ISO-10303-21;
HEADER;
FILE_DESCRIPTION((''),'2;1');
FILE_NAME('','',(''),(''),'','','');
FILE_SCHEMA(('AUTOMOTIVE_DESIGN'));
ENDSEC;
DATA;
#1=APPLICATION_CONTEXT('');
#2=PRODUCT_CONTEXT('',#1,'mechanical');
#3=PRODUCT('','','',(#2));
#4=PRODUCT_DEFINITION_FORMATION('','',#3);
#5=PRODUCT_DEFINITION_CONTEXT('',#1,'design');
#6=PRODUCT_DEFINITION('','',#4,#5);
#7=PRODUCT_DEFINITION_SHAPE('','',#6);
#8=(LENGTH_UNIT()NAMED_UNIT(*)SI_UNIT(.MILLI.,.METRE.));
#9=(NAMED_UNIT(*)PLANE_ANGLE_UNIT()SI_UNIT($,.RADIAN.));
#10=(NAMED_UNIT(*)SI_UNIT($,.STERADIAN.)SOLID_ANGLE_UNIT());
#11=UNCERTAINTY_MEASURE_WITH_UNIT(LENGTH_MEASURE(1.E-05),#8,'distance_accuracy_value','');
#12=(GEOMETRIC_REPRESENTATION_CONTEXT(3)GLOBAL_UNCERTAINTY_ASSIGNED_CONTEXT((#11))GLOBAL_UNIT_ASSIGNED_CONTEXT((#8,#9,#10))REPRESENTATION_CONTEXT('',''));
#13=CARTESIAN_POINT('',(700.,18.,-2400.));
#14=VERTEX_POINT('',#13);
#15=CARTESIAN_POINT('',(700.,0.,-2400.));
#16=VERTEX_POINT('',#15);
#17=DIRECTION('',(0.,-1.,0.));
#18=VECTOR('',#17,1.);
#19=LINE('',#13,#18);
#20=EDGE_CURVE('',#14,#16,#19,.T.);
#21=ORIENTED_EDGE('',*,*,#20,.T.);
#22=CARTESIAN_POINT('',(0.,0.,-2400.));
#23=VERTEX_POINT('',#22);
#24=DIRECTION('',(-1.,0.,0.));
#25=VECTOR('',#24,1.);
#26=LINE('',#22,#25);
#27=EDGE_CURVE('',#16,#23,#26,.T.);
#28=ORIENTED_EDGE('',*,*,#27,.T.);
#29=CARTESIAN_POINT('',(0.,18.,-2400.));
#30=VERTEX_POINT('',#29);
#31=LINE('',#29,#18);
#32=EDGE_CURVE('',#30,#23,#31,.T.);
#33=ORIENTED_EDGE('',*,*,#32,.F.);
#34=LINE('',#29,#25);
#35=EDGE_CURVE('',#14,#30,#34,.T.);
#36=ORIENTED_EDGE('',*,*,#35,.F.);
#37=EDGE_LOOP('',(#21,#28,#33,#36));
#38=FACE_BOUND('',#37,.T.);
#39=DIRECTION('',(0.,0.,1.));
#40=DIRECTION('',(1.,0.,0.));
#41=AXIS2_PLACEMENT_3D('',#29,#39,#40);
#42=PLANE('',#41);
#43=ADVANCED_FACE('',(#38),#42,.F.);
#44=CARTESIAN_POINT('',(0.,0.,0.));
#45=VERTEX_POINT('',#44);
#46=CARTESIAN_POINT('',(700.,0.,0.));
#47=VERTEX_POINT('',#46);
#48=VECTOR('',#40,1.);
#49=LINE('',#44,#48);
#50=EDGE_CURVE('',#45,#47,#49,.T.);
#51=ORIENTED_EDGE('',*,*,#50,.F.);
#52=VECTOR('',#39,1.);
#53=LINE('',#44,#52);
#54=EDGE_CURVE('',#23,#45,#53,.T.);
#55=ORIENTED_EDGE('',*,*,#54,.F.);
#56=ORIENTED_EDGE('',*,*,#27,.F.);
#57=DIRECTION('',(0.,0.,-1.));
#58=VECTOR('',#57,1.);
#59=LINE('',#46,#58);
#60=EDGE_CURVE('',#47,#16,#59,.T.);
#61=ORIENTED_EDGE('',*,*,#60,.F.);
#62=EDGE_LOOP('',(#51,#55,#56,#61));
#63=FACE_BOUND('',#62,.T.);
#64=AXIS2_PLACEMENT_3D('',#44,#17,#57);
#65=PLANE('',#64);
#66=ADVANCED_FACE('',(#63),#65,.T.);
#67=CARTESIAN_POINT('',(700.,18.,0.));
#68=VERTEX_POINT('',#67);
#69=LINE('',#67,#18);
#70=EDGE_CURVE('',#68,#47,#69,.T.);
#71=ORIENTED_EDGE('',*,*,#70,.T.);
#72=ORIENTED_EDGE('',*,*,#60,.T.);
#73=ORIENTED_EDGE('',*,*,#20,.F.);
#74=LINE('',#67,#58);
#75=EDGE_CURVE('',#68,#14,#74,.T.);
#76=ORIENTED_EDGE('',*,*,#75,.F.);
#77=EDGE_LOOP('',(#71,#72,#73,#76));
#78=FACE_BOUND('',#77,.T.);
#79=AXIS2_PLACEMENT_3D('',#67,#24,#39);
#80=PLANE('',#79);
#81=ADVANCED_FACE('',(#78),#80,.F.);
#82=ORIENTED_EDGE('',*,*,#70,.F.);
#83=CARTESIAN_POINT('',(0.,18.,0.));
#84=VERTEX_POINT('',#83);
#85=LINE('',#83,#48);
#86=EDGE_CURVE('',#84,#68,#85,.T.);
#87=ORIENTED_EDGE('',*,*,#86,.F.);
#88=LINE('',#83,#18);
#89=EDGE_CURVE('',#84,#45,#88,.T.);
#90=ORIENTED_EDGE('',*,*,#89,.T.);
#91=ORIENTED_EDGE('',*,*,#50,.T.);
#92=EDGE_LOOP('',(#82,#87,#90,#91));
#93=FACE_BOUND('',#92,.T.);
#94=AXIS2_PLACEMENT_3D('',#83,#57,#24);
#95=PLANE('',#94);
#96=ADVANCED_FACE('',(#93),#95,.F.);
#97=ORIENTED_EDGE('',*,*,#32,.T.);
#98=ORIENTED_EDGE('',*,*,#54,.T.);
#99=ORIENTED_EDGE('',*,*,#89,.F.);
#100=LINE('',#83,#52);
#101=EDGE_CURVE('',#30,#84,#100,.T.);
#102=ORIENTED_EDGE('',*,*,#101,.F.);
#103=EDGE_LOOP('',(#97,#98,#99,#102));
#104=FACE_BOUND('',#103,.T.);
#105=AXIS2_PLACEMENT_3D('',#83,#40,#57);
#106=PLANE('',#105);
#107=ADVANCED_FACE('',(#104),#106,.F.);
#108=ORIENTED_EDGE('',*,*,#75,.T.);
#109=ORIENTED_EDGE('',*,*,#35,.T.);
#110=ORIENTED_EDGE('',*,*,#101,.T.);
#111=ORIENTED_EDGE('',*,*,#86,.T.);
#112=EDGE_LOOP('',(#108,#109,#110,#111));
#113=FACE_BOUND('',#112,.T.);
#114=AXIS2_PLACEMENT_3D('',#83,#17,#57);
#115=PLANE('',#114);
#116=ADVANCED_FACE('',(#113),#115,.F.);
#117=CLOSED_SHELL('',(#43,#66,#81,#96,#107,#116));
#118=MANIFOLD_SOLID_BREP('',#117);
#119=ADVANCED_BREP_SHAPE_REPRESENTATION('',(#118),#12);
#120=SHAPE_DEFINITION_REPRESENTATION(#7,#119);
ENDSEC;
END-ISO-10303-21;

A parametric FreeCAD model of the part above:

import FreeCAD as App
import Part
import Sketcher

V = App.Vector
Q = App.Units.Quantity


def add_polygon(sketch, points):
    """Adds a closed chain of lines whose ends are joined by coincident constraints."""
    first, n = sketch.GeometryCount, len(points)
    for a, b in zip(points, points[1:] + points[:1]):
        sketch.addGeometry(Part.LineSegment(App.Vector(*a, 0), App.Vector(*b, 0)), False)
    for i in range(n):
        sketch.addConstraint(Sketcher.Constraint("Coincident", first + i, 2, first + (i + 1) % n, 1))

doc = App.newDocument("Part")
body = doc.addObject("PartDesign::Body", "Body")

sketch1 = body.newObject("Sketcher::SketchObject", "Sketch")
sketch1.AttachmentSupport = (doc.getObject("XZ_Plane"), [""])
sketch1.MapMode = "FlatFace"
add_polygon(sketch1, [(0, -2400), (0, 0), (700, 0), (700, -2400)])
sketch1.addConstraint([
    Sketcher.Constraint("Vertical", 0),
    Sketcher.Constraint("Horizontal", 1),
    Sketcher.Constraint("Vertical", 2),
    Sketcher.Constraint("Horizontal", 3),
    Sketcher.Constraint("Coincident", 0, 2, -1, 1),
    Sketcher.Constraint("DistanceX", 1, 1, 1, 2, Q("700 mm")),
    Sketcher.Constraint("DistanceY", 0, 1, 0, 2, Q("2400 mm")),
])
pad1 = body.newObject("PartDesign::Pad", "Pad")
pad1.Profile = sketch1
pad1.Length = 18
pad1.Reversed = True

doc.recompute()
